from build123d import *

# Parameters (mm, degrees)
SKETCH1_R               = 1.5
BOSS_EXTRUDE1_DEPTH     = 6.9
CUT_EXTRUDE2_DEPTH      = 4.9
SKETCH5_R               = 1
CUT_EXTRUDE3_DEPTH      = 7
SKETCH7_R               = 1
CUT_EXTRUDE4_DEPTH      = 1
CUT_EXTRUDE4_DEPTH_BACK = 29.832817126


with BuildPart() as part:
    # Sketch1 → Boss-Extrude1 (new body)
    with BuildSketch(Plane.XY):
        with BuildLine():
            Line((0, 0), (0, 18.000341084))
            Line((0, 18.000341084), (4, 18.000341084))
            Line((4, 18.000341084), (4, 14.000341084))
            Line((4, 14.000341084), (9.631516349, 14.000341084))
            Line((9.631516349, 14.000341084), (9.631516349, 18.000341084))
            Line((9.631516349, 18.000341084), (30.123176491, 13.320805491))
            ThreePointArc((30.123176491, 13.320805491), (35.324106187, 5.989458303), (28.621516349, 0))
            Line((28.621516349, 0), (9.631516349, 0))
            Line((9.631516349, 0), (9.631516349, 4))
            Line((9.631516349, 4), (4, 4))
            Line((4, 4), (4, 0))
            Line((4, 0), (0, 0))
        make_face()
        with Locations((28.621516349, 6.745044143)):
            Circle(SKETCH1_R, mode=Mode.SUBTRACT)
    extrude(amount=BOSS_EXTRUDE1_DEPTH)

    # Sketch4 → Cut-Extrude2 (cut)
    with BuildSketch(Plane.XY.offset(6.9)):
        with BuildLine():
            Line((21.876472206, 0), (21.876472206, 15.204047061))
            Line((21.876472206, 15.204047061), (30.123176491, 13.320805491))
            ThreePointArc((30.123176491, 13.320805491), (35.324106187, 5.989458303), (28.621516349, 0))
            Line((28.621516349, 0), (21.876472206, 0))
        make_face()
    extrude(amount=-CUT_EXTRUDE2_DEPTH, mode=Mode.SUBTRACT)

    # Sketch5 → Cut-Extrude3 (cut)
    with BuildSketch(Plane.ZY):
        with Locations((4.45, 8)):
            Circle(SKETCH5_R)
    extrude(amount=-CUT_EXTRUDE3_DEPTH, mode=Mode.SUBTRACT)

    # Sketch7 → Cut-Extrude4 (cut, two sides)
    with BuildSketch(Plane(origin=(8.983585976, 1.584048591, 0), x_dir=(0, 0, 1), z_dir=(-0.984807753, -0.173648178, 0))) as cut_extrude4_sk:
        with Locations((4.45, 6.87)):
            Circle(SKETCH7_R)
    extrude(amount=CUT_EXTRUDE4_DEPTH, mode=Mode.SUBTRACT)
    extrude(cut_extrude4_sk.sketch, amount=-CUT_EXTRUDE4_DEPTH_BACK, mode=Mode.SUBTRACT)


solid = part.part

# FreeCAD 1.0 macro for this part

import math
import FreeCAD as App
import Part
import Sketcher
from FreeCAD import Vector

doc = App.newDocument("Part")
body = doc.addObject("PartDesign::Body", "Body")

# Sketch on XY plane
sketch1 = body.newObject("Sketcher::SketchObject", "Sketch")
sketch1.AttachmentSupport = (doc.getObject("XY_Plane"), [""])
sketch1.MapMode = "FlatFace"
sketch1.addGeometry(Part.LineSegment(Vector(0, 18.000341, 0), Vector(0, 0, 0)), False)
sketch1.addGeometry(Part.LineSegment(Vector(0, 0, 0), Vector(4, 0, 0)), False)
sketch1.addGeometry(Part.LineSegment(Vector(4, 0, 0), Vector(4, 4, 0)), False)
sketch1.addGeometry(Part.LineSegment(Vector(4, 4, 0), Vector(9.631516, 4, 0)), False)
sketch1.addGeometry(Part.LineSegment(Vector(9.631516, 4, 0), Vector(9.631516, 0, 0)), False)
sketch1.addGeometry(Part.LineSegment(Vector(9.631516, 0, 0), Vector(28.621516, 0, 0)), False)
sketch1.addGeometry(Part.ArcOfCircle(Part.Circle(Vector(28.621516, 6.745044, 0), Vector(0, 0, 1), 6.745044), math.radians(-90), math.radians(77.136352)), False)
sketch1.addGeometry(Part.LineSegment(Vector(30.123176, 13.320805, 0), Vector(9.631516, 18.000341, 0)), False)
sketch1.addGeometry(Part.LineSegment(Vector(9.631516, 18.000341, 0), Vector(9.631516, 14.000341, 0)), False)
sketch1.addGeometry(Part.LineSegment(Vector(9.631516, 14.000341, 0), Vector(4, 14.000341, 0)), False)
sketch1.addGeometry(Part.LineSegment(Vector(4, 14.000341, 0), Vector(4, 18.000341, 0)), False)
sketch1.addGeometry(Part.LineSegment(Vector(4, 18.000341, 0), Vector(0, 18.000341, 0)), False)
sketch1.addGeometry(Part.Circle(Vector(28.621516, 6.745044, 0), Vector(0, 0, 1), 1.5), False)
sketch1.addConstraint(Sketcher.Constraint("Coincident", 0, 2, 1, 1))
sketch1.addConstraint(Sketcher.Constraint("Coincident", 1, 2, 2, 1))
sketch1.addConstraint(Sketcher.Constraint("Coincident", 2, 2, 3, 1))
sketch1.addConstraint(Sketcher.Constraint("Coincident", 3, 2, 4, 1))
sketch1.addConstraint(Sketcher.Constraint("Coincident", 4, 2, 5, 1))
sketch1.addConstraint(Sketcher.Constraint("Tangent", 5, 2, 6, 1))
sketch1.addConstraint(Sketcher.Constraint("Tangent", 6, 2, 7, 1))
sketch1.addConstraint(Sketcher.Constraint("Coincident", 7, 2, 8, 1))
sketch1.addConstraint(Sketcher.Constraint("Coincident", 8, 2, 9, 1))
sketch1.addConstraint(Sketcher.Constraint("Coincident", 9, 2, 10, 1))
sketch1.addConstraint(Sketcher.Constraint("Coincident", 10, 2, 11, 1))
sketch1.addConstraint(Sketcher.Constraint("Coincident", 11, 2, 0, 1))
sketch1.addConstraint(Sketcher.Constraint("Vertical", 0))
sketch1.addConstraint(Sketcher.Constraint("Horizontal", 1))
sketch1.addConstraint(Sketcher.Constraint("Vertical", 2))
sketch1.addConstraint(Sketcher.Constraint("Horizontal", 3))
sketch1.addConstraint(Sketcher.Constraint("Vertical", 4))
sketch1.addConstraint(Sketcher.Constraint("Horizontal", 5))
sketch1.addConstraint(Sketcher.Constraint("Vertical", 8))
sketch1.addConstraint(Sketcher.Constraint("Horizontal", 9))
sketch1.addConstraint(Sketcher.Constraint("Vertical", 10))
sketch1.addConstraint(Sketcher.Constraint("Horizontal", 11))
sketch1.addConstraint(Sketcher.Constraint("Coincident", 0, 2, -1, 1))
sketch1.addConstraint(Sketcher.Constraint("Coincident", 12, 3, 6, 3))
sketch1.addConstraint(Sketcher.Constraint("PointOnObject", 4, 2, -1))
sketch1.addConstraint(Sketcher.Constraint("Horizontal", 7, 2, 10, 2))
sketch1.addConstraint(Sketcher.Constraint("Vertical", 4, 2, 7, 2))
sketch1.addConstraint(Sketcher.Constraint("Vertical", 2, 2, 9, 2))
sketch1.addConstraint(Sketcher.Constraint("Equal", 11, 2))
sketch1.addConstraint(Sketcher.Constraint("Equal", 4, 8))
sketch1.addConstraint(Sketcher.Constraint("Diameter", 12, 3.0))
sketch1.addConstraint(Sketcher.Constraint("DistanceX", 1, 1, 1, 2, 4.0))
sketch1.addConstraint(Sketcher.Constraint("DistanceX", 5, 1, 5, 2, 18.99))
sketch1.addConstraint(Sketcher.Constraint("Radius", 6, 6.745044))
sketch1.addConstraint(Sketcher.Constraint("DistanceY", 0, 2, 0, 1, 18.000341))
sketch1.addConstraint(Sketcher.Constraint("DistanceX", 3, 1, 3, 2, 5.631516))
pad1 = body.newObject("PartDesign::Pad", "Pad")
pad1.Profile = sketch1
pad1.Length = 6.9

# Sketch on XY plane
sketch2 = body.newObject("Sketcher::SketchObject", "Sketch001")
sketch2.AttachmentSupport = (doc.getObject("XY_Plane"), [""])
sketch2.MapMode = "FlatFace"
sketch2.AttachmentOffset = App.Placement(Vector(0, 0, 6.9), App.Rotation())
sketch2.addGeometry(Part.LineSegment(Vector(21.876472, 15.204047, 0), Vector(21.876472, 0, 0)), False)
sketch2.addGeometry(Part.LineSegment(Vector(21.876472, 0, 0), Vector(28.621516, 0, 0)), False)
sketch2.addGeometry(Part.ArcOfCircle(Part.Circle(Vector(28.621516, 6.745044, 0), Vector(0, 0, 1), 6.745044), math.radians(-90), math.radians(77.136352)), False)
sketch2.addGeometry(Part.LineSegment(Vector(30.123176, 13.320805, 0), Vector(21.876472, 15.204047, 0)), False)
sketch2.addConstraint(Sketcher.Constraint("Coincident", 0, 2, 1, 1))
sketch2.addConstraint(Sketcher.Constraint("Tangent", 1, 2, 2, 1))
sketch2.addConstraint(Sketcher.Constraint("Tangent", 2, 2, 3, 1))
sketch2.addConstraint(Sketcher.Constraint("Coincident", 3, 2, 0, 1))
sketch2.addConstraint(Sketcher.Constraint("Vertical", 0))
sketch2.addConstraint(Sketcher.Constraint("Horizontal", 1))
sketch2.addConstraint(Sketcher.Constraint("PointOnObject", 0, 2, -1))
sketch2.addConstraint(Sketcher.Constraint("Radius", 2, 6.745044))
sketch2.addConstraint(Sketcher.Constraint("DistanceX", 1, 1, 1, 2, 6.745044))
sketch2.addConstraint(Sketcher.Constraint("DistanceY", 0, 2, 0, 1, 15.204047))
sketch2.addConstraint(Sketcher.Constraint("DistanceX", -1, 1, 2, 3, 28.621516))
pocket1 = body.newObject("PartDesign::Pocket", "Pocket")
pocket1.Profile = sketch2
pocket1.Length = 4.9

# Sketch on YZ plane
sketch3 = body.newObject("Sketcher::SketchObject", "Sketch002")
sketch3.AttachmentSupport = (doc.getObject("YZ_Plane"), [""])
sketch3.MapMode = "FlatFace"
sketch3.addGeometry(Part.Circle(Vector(8, 4.45, 0), Vector(0, 0, 1), 1), False)
sketch3.addConstraint(Sketcher.Constraint("Diameter", 0, 2.0))
sketch3.addConstraint(Sketcher.Constraint("DistanceX", -1, 1, 0, 3, 8.0))
sketch3.addConstraint(Sketcher.Constraint("DistanceY", -1, 1, 0, 3, 4.45))
pocket2 = body.newObject("PartDesign::Pocket", "Pocket001")
pocket2.Profile = sketch3
pocket2.Length = 7
pocket2.Reversed = True

# Sketch on an angled plane
sketch4 = body.newObject("Sketcher::SketchObject", "Sketch003")
sketch4.Placement = App.Placement(Vector(8.983586, 1.584049, 0), App.Rotation(Vector(0, 0, 1), Vector(-0.173648178, 0.984807753, 0), Vector(-0.984807753, -0.173648178, 0), "ZXY"))
sketch4.addGeometry(Part.Circle(Vector(4.45, 6.87, 0), Vector(0, 0, 1), 1), False)
sketch4.addConstraint(Sketcher.Constraint("Diameter", 0, 2.0))
sketch4.addConstraint(Sketcher.Constraint("DistanceX", -1, 1, 0, 3, 4.45))
sketch4.addConstraint(Sketcher.Constraint("DistanceY", -1, 1, 0, 3, 6.87))
pocket3 = body.newObject("PartDesign::Pocket", "Pocket002")
pocket3.Profile = sketch4
pocket3.Type = "TwoLengths"
pocket3.Length = 1
pocket3.Length2 = 29.832817
pocket3.Reversed = True

doc.recompute()
